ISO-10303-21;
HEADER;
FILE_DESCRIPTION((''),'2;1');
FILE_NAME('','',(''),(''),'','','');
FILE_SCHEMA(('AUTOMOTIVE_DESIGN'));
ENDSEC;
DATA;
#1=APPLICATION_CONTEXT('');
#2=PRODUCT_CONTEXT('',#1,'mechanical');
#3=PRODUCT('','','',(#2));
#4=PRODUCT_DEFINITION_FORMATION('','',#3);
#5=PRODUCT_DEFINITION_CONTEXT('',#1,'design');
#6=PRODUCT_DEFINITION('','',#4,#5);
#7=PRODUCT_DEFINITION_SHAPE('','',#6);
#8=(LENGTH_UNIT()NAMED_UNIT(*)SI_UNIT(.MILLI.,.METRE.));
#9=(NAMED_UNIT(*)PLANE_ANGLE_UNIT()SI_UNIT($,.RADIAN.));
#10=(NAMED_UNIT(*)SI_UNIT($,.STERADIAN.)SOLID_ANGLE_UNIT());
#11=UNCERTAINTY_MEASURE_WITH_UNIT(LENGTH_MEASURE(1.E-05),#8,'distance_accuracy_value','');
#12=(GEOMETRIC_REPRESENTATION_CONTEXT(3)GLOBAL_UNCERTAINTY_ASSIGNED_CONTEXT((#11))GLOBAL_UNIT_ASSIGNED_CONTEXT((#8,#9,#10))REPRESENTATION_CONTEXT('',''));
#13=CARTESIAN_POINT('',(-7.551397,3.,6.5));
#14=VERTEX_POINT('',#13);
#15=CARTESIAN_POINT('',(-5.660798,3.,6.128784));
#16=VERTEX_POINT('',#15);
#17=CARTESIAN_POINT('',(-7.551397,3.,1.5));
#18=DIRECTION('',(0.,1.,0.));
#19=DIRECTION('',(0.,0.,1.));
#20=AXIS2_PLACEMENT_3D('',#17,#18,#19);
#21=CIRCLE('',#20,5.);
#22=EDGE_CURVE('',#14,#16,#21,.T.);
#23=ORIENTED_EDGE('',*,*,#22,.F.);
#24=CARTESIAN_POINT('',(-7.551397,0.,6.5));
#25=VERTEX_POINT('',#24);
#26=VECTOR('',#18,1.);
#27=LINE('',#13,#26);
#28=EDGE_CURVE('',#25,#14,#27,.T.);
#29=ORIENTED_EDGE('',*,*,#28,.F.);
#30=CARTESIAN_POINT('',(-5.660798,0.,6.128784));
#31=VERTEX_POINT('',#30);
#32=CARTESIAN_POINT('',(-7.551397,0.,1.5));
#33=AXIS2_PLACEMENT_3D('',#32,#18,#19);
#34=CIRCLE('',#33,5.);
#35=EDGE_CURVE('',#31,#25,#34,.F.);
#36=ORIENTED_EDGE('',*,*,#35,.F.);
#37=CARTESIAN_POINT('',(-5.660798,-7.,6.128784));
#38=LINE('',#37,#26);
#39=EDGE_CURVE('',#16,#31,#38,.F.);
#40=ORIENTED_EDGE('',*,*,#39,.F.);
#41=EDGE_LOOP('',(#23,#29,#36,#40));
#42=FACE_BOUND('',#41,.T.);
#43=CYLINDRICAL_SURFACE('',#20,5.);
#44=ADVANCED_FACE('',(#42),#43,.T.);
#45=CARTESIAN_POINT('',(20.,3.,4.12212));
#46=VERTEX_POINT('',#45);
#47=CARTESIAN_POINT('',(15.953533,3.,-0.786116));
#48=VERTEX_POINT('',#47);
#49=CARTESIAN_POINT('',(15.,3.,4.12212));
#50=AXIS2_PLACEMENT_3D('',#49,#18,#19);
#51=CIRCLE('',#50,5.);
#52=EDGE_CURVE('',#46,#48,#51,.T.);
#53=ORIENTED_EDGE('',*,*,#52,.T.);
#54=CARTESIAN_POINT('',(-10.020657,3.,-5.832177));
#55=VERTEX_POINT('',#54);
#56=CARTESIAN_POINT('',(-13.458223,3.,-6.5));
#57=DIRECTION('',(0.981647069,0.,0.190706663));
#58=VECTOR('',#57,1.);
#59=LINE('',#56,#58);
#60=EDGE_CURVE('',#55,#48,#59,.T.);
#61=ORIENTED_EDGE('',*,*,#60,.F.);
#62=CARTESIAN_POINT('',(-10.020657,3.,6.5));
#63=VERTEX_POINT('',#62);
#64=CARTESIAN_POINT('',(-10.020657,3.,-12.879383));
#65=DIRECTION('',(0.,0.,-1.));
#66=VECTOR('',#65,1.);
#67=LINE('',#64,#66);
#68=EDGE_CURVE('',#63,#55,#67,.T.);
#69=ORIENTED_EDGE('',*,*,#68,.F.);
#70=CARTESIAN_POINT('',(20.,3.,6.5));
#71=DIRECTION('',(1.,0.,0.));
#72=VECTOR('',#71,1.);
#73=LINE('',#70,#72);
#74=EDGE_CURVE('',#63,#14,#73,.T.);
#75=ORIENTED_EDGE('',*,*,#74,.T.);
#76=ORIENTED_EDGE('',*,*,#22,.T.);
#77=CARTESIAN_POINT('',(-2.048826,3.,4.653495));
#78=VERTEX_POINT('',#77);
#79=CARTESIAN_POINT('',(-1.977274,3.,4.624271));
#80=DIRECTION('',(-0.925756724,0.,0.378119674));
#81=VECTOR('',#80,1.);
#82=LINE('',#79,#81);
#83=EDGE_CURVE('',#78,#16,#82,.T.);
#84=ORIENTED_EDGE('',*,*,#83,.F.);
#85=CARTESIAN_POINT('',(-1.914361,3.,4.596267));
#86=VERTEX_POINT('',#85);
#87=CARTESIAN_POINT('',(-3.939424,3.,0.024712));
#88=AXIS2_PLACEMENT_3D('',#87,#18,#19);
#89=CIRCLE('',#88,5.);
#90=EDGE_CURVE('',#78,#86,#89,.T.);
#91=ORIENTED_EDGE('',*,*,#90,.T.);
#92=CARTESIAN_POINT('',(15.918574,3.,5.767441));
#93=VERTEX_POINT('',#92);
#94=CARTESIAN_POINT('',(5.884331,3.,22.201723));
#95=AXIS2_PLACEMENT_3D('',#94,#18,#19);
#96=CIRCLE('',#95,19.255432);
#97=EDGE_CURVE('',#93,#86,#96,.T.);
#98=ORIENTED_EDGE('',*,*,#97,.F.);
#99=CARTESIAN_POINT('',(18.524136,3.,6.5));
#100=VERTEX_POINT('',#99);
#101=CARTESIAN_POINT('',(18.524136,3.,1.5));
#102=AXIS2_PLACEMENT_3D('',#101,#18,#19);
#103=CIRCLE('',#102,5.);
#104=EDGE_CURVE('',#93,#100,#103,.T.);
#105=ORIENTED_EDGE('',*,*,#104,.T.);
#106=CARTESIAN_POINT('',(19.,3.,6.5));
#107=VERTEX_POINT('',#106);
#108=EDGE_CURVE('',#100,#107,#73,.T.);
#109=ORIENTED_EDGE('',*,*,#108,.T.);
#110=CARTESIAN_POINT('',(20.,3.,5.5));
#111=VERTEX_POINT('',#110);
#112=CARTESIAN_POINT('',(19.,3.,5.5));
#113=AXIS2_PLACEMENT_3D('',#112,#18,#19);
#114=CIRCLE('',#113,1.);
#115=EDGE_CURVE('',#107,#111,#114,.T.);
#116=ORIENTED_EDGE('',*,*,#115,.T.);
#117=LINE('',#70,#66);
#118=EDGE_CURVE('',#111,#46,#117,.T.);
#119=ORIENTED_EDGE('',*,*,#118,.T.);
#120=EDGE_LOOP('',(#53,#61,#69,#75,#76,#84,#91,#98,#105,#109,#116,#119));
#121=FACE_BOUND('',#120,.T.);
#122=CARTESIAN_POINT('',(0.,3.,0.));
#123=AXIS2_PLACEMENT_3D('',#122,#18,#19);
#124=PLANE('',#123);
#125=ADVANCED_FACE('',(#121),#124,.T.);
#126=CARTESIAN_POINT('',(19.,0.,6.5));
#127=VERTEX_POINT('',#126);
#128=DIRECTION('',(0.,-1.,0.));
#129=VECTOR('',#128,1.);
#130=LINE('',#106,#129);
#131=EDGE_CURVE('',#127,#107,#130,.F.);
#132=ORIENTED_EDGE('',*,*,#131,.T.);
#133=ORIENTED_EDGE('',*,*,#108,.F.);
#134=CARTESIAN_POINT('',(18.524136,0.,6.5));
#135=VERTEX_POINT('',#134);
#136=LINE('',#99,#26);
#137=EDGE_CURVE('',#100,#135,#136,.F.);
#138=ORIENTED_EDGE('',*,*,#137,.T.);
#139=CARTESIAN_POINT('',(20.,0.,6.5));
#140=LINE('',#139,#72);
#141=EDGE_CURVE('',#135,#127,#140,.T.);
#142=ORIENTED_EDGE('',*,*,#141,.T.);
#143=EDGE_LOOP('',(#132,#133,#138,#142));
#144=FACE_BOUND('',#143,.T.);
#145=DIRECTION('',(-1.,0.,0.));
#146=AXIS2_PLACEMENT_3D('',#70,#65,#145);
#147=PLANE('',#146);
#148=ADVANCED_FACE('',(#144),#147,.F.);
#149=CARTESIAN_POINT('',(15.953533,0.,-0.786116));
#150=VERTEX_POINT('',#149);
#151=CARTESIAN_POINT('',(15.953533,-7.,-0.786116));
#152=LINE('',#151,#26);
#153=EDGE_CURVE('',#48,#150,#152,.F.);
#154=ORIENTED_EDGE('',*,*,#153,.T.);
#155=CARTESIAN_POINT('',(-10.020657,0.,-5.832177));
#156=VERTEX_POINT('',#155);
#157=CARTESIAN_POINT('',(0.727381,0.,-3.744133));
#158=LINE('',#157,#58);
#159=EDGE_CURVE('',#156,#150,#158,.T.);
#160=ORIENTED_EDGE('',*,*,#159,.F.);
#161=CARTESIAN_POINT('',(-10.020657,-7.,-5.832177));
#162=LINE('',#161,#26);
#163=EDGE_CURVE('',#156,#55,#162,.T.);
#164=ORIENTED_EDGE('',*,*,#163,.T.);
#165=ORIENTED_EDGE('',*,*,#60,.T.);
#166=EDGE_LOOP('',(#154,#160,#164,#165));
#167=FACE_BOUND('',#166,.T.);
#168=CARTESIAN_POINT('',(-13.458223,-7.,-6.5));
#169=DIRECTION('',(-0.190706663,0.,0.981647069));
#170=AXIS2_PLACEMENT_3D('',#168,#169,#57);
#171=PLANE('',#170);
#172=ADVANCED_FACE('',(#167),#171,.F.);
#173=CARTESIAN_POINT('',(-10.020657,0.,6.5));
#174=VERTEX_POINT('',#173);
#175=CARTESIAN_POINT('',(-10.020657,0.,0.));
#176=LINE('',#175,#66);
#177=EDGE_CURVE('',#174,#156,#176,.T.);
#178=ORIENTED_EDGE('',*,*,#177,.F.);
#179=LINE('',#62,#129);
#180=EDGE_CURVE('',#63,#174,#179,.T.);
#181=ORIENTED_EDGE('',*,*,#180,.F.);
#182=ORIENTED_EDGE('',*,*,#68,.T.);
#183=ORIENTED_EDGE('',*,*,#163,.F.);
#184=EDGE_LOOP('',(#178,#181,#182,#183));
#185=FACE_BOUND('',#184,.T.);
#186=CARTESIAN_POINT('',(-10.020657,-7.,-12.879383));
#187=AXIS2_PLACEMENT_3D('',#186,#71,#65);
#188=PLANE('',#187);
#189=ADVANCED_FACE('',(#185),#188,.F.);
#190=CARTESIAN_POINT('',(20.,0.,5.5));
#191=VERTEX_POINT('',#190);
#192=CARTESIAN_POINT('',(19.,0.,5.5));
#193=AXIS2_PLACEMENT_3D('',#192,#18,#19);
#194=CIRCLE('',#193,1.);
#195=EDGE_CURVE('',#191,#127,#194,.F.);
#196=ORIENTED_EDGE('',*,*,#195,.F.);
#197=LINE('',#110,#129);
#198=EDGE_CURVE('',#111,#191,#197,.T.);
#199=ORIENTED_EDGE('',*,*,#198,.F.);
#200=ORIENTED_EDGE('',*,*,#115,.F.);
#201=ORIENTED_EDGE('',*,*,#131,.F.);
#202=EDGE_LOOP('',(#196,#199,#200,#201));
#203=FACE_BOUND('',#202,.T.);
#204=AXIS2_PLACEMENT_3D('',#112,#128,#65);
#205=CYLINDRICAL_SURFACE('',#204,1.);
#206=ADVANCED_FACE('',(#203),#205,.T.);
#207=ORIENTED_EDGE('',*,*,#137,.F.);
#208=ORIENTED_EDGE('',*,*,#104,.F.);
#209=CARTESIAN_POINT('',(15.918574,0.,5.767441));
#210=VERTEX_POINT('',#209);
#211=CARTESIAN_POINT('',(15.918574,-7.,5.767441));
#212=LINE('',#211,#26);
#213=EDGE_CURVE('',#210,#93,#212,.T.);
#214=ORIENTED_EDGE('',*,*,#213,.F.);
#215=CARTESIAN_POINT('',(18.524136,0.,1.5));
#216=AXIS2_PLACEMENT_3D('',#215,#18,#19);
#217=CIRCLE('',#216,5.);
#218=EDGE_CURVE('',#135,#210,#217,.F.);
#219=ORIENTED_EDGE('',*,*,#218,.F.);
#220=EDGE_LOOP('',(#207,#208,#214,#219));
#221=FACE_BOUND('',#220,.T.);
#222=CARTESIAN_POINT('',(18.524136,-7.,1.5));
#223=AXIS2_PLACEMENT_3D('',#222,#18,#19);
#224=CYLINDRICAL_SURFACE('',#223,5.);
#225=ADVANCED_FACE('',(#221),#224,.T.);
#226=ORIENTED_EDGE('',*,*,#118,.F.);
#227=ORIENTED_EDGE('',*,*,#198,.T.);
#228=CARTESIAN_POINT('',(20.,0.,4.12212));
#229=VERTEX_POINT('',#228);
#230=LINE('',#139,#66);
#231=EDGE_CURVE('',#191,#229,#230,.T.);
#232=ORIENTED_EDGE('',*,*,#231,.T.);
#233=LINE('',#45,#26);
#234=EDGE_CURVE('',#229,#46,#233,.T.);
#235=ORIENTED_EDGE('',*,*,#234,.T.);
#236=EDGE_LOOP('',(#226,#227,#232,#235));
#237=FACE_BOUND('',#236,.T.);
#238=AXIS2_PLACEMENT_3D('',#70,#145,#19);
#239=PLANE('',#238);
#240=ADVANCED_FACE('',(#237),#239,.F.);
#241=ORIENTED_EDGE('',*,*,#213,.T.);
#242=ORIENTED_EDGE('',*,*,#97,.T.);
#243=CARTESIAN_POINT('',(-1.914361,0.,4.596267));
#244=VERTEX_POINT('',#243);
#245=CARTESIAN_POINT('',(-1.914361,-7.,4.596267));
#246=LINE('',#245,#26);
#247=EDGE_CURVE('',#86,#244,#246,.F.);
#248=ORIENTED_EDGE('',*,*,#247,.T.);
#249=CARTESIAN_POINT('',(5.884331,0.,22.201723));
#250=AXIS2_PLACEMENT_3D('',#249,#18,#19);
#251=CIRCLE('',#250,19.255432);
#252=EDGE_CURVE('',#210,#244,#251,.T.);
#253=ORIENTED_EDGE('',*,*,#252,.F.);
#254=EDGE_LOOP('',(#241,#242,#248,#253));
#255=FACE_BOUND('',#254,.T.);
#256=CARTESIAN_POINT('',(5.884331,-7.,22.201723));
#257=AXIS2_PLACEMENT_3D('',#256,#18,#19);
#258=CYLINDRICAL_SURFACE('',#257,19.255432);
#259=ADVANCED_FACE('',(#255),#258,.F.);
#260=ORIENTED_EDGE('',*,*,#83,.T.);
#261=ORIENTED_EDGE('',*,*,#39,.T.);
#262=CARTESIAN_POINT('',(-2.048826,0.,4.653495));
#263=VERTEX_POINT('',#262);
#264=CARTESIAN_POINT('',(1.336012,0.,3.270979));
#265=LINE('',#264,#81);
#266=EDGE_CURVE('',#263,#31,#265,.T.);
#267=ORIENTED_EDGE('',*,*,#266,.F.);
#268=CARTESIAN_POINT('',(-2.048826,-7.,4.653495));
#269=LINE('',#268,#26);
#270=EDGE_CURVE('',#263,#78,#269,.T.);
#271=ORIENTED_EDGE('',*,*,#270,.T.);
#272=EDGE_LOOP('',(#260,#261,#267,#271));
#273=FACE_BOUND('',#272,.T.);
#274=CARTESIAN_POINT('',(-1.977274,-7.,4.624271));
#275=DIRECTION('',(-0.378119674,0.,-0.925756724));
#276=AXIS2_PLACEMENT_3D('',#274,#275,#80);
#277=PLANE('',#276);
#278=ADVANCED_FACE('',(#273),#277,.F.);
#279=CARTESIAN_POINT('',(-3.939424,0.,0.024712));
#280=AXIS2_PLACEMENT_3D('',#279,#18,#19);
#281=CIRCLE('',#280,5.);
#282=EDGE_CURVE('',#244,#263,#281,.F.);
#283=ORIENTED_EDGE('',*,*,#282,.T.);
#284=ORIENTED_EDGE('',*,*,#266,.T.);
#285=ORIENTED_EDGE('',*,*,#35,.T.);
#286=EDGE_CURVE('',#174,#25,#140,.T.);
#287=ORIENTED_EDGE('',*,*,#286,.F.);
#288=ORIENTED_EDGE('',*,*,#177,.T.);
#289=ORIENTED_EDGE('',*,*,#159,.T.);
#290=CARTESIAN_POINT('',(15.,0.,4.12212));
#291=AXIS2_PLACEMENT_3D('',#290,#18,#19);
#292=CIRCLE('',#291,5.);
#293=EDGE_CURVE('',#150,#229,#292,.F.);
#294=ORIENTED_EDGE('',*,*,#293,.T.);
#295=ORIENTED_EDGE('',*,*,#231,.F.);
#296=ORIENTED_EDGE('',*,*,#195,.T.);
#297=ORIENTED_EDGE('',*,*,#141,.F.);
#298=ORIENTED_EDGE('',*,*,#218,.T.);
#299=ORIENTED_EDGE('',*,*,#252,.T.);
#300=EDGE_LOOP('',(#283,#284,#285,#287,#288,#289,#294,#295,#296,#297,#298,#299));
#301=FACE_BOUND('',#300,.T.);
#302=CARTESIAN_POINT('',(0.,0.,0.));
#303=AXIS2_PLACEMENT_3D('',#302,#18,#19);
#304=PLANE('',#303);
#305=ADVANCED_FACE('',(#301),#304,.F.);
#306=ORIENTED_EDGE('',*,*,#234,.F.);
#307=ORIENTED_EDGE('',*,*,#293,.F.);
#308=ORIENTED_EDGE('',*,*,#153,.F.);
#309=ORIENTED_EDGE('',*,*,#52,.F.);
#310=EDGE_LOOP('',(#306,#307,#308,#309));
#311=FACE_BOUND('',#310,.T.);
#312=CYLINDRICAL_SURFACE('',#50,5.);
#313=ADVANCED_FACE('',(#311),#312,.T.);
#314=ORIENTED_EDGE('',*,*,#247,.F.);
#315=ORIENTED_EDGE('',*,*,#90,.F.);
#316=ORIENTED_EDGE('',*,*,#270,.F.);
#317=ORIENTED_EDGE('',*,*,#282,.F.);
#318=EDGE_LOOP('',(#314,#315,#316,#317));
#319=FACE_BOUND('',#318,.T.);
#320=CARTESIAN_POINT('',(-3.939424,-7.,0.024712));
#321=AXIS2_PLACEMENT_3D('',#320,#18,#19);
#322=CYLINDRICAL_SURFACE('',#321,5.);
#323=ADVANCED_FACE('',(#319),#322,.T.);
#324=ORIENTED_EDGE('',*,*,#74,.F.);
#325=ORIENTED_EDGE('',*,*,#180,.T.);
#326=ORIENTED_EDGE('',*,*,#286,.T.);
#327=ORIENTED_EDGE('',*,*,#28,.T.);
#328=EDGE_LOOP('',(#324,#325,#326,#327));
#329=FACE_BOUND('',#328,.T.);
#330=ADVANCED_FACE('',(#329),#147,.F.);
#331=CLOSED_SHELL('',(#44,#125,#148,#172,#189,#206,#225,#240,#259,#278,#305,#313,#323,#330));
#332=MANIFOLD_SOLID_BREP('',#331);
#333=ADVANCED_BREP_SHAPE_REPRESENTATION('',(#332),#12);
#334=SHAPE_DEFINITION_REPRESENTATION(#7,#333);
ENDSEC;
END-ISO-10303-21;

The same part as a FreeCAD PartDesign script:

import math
import FreeCAD as App
import Part
import Sketcher
from FreeCAD import Vector
Q = App.Units.Quantity


def edges_at(feature, points):
    """Names of the edges that pass closest to the given points."""
    edges = feature.Shape.Edges
    near = lambda p: min(range(len(edges)), key=lambda i: edges[i].distToShape(Part.Vertex(*p))[0])
    return sorted({f"Edge{near(p) + 1}" for p in points})

doc = App.newDocument("Part")
params = doc.addObject("Spreadsheet::Sheet", "Params")
for row, (alias, value) in enumerate([
    ("sketch1_width", "40 mm"),
    ("sketch1_height", "13 mm"),
    ("pad1_length", "3 mm"),
    ("sketch2_diameter", "2.5 mm"),
    ("sketch3_height", "6.5 mm"),
    ("pocket2_length", "10 mm"),
    ("fillet_radius", "5 mm"),
    ("fillet2_radius", "1 mm"),
    ("fillet3_radius", "5 mm"),
    ("fillet4_radius", "5 mm"),
    ("pocket3_length", "10 mm"),
], start=1):
    params.set(f"A{row}", alias)
    params.set(f"B{row}", "=" + value)
    params.setAlias(f"B{row}", alias)

body = doc.addObject("PartDesign::Body", "Body")

# Sketch on XZ plane
sketch1 = body.newObject("Sketcher::SketchObject", "Sketch")
sketch1.AttachmentSupport = (doc.getObject("XZ_Plane"), [""])
sketch1.MapMode = "FlatFace"
sketch1.addGeometry([
    Part.LineSegment(Vector(-20, -6, 0), Vector(-20, 6, 0)),
    Part.LineSegment(Vector(-20, 6, 0), Vector(20, 6, 0)),
    Part.LineSegment(Vector(20, 6, 0), Vector(20, -6, 0)),
    Part.LineSegment(Vector(20, -6, 0), Vector(-20, -6, 0)),
], False)
sketch1.addConstraint([
    Sketcher.Constraint("Coincident", 0, 2, 1, 1),
    Sketcher.Constraint("Coincident", 1, 2, 2, 1),
    Sketcher.Constraint("Coincident", 2, 2, 3, 1),
    Sketcher.Constraint("Coincident", 3, 2, 0, 1),
    Sketcher.Constraint("Vertical", 0),
    Sketcher.Constraint("Horizontal", 1),
    Sketcher.Constraint("Vertical", 2),
    Sketcher.Constraint("Horizontal", 3),
    Sketcher.Constraint("Symmetric", 0, 2, 2, 2, -1, 1),
    Sketcher.Constraint("DistanceX", 1, 1, 1, 2, Q("40 mm")),
    Sketcher.Constraint("DistanceY", 0, 1, 0, 2, Q("13 mm")),
])
sketch1.setExpression("Constraints[9]", "Params.sketch1_width")
sketch1.setExpression("Constraints[10]", "Params.sketch1_height")
pad1 = body.newObject("PartDesign::Pad", "Pad")
pad1.Profile = sketch1
pad1.setExpression("Length", "Params.pad1_length")
pad1.Reversed = True

# Sketch on XZ plane
sketch2 = body.newObject("Sketcher::SketchObject", "Sketch001")
sketch2.AttachmentSupport = (doc.getObject("XZ_Plane"), [""])
sketch2.MapMode = "FlatFace"
sketch2.AttachmentOffset = App.Placement(Vector(0, 0, -3), App.Rotation())
sketch2.addGeometry([
    Part.Circle(Vector(-17, -4, 0), Vector(0, 0, 1), 1.2),
    Part.Circle(Vector(-17, 4, 0), Vector(0, 0, 1), 1.2),
], False)
sketch2.addConstraint([
    Sketcher.Constraint("Equal", 0, 1),
    Sketcher.Constraint("Symmetric", 0, 3, 1, 3, -1),
    Sketcher.Constraint("Diameter", 0, Q("2.5 mm")),
    Sketcher.Constraint("DistanceX", 0, 3, -1, 1, Q("17 mm")),
    Sketcher.Constraint("DistanceY", 0, 3, -1, 1, Q("4 mm")),
])
sketch2.setExpression("Constraints[2]", "Params.sketch2_diameter")
pocket1 = body.newObject("PartDesign::Pocket", "Pocket")
pocket1.Profile = sketch2
pocket1.Type = "ThroughAll"
pocket1.Reversed = True

# Sketch on XZ plane
sketch3 = body.newObject("Sketcher::SketchObject", "Sketch002")
sketch3.AttachmentSupport = (doc.getObject("XZ_Plane"), [""])
sketch3.MapMode = "FlatFace"
sketch3.AttachmentOffset = App.Placement(Vector(0, 0, -3), App.Rotation())
sketch3.addGeometry([
    Part.LineSegment(Vector(-13.5, -6.5, 0), Vector(20, 0, 0)),  # 0
    Part.LineSegment(Vector(20, 0, 0), Vector(20, 6.5, 0)),  # 1
    Part.LineSegment(Vector(20, 6.5, 0), Vector(17, 6.5, 0)),  # 2
    Part.ArcOfCircle(Part.Circle(Vector(5.9, 22.2, 0), Vector(0, 0, 1), 19.3), math.radians(-114), math.radians(-55)),  # 3
    Part.LineSegment(Vector(-2, 4.6, 0), Vector(-6.6, 6.5, 0)),  # 4
    Part.LineSegment(Vector(-6.6, 6.5, 0), Vector(-13.5, 6.5, 0)),  # 5
    Part.LineSegment(Vector(-13.5, 6.5, 0), Vector(-13.5, 10.2, 0)),  # 6
    Part.LineSegment(Vector(-13.5, 10.2, 0), Vector(26, 9.7, 0)),  # 7
    Part.LineSegment(Vector(26, 9.7, 0), Vector(26, -8.5, 0)),  # 8
    Part.LineSegment(Vector(26, -8.5, 0), Vector(-13.5, -8.5, 0)),  # 9
    Part.LineSegment(Vector(-13.5, -8.5, 0), Vector(-13.5, -6.5, 0)),  # 10
], False)
sketch3.addConstraint([
    Sketcher.Constraint("Coincident", 0, 2, 1, 1),
    Sketcher.Constraint("Coincident", 1, 2, 2, 1),
    Sketcher.Constraint("Coincident", 2, 2, 3, 2),
    Sketcher.Constraint("Coincident", 3, 1, 4, 1),
    Sketcher.Constraint("Coincident", 4, 2, 5, 1),
    Sketcher.Constraint("Coincident", 5, 2, 6, 1),
    Sketcher.Constraint("Coincident", 6, 2, 7, 1),
    Sketcher.Constraint("Coincident", 7, 2, 8, 1),
    Sketcher.Constraint("Coincident", 8, 2, 9, 1),
    Sketcher.Constraint("Coincident", 9, 2, 10, 1),
    Sketcher.Constraint("Coincident", 10, 2, 0, 1),
    Sketcher.Constraint("Vertical", 1),
    Sketcher.Constraint("Horizontal", 2),
    Sketcher.Constraint("Horizontal", 5),
    Sketcher.Constraint("Vertical", 6),
    Sketcher.Constraint("Vertical", 8),
    Sketcher.Constraint("Horizontal", 9),
    Sketcher.Constraint("Vertical", 10),
    Sketcher.Constraint("Symmetric", 5, 2, 10, 2, -1),
    Sketcher.Constraint("PointOnObject", 0, 2, -1),
    Sketcher.Constraint("Horizontal", 2, 2, 4, 2),
    Sketcher.Constraint("DistanceY", 1, 1, 1, 2, Q("6.5 mm")),
    Sketcher.Constraint("DistanceX", -1, 1, 0, 2, Q("20 mm")),
    Sketcher.Constraint("Radius", 3, Q("19.255432 mm")),
    Sketcher.Constraint("DistanceX", 5, 2, 5, 1, Q("6.888569 mm")),
    Sketcher.Constraint("DistanceY", 6, 1, 6, 2, Q("3.737179 mm")),
    Sketcher.Constraint("DistanceY", 8, 2, 8, 1, Q("18.204189 mm")),
    Sketcher.Constraint("Distance", 0, Q("34.083759 mm")),
    Sketcher.Constraint("DistanceX", 2, 2, 2, 1, Q("2.969927 mm")),
    Sketcher.Constraint("DistanceX", 9, 2, 9, 1, Q("39.481705 mm")),
    Sketcher.Constraint("DistanceY", 10, 1, 10, 2, Q("1.977274 mm")),
    Sketcher.Constraint("DistanceX", -1, 1, 3, 3, Q("5.884331 mm")),
    Sketcher.Constraint("DistanceY", -1, 1, 3, 1, Q("4.624271 mm")),
])
sketch3.setExpression("Constraints[21]", "Params.sketch3_height")
pocket2 = body.newObject("PartDesign::Pocket", "Pocket001")
pocket2.Profile = sketch3
pocket2.setExpression("Length", "Params.pocket2_length")
pocket2.Reversed = True
doc.recompute()

fillet = body.newObject("PartDesign::Fillet", "Fillet")
fillet.Base = (pocket2, edges_at(pocket2, [(-6.57, 1.5, 6.5), (-1.977, 1.5, 4.624), (17.03, 1.5, 6.5)]))
fillet.setExpression("Radius", "Params.fillet_radius")
doc.recompute()

fillet2 = body.newObject("PartDesign::Fillet", "Fillet001")
fillet2.Base = (fillet, edges_at(fillet, [(20, 1.5, 6.5)]))
fillet2.setExpression("Radius", "Params.fillet2_radius")
doc.recompute()

fillet3 = body.newObject("PartDesign::Fillet", "Fillet002")
fillet3.Base = (fillet2, edges_at(fillet2, [(20, 1.5, 0)]))
fillet3.setExpression("Radius", "Params.fillet3_radius")
doc.recompute()

fillet4 = body.newObject("PartDesign::Fillet", "Fillet003")
fillet4.Base = (fillet3, edges_at(fillet3, [(-13.458, 1.5, -6.5)]))
fillet4.setExpression("Radius", "Params.fillet4_radius")

# Sketch on XZ plane
sketch4 = body.newObject("Sketcher::SketchObject", "Sketch003")
sketch4.AttachmentSupport = (doc.getObject("XZ_Plane"), [""])
sketch4.MapMode = "FlatFace"
sketch4.AttachmentOffset = App.Placement(Vector(0, 0, -3), App.Rotation())
sketch4.addGeometry([
    Part.LineSegment(Vector(-25, -13, 0), Vector(-25, 14, 0)),
    Part.LineSegment(Vector(-25, 14, 0), Vector(-10, 14, 0)),
    Part.LineSegment(Vector(-10, 14, 0), Vector(-10, -13, 0)),
    Part.LineSegment(Vector(-10, -13, 0), Vector(-25, -13, 0)),
], False)
sketch4.addConstraint([
    Sketcher.Constraint("Coincident", 0, 2, 1, 1),
    Sketcher.Constraint("Coincident", 1, 2, 2, 1),
    Sketcher.Constraint("Coincident", 2, 2, 3, 1),
    Sketcher.Constraint("Coincident", 3, 2, 0, 1),
    Sketcher.Constraint("Vertical", 0),
    Sketcher.Constraint("Horizontal", 1),
    Sketcher.Constraint("Vertical", 2),
    Sketcher.Constraint("Horizontal", 3),
    Sketcher.Constraint("DistanceX", 1, 1, 1, 2, Q("15.217677 mm")),
    Sketcher.Constraint("DistanceY", 0, 1, 0, 2, Q("27.138086 mm")),
    Sketcher.Constraint("DistanceX", 0, 2, -1, 1, Q("25.238334 mm")),
    Sketcher.Constraint("DistanceY", -1, 1, 0, 2, Q("14.258703 mm")),
])
pocket3 = body.newObject("PartDesign::Pocket", "Pocket002")
pocket3.Profile = sketch4
pocket3.setExpression("Length", "Params.pocket3_length")
pocket3.Reversed = True

doc.recompute()
